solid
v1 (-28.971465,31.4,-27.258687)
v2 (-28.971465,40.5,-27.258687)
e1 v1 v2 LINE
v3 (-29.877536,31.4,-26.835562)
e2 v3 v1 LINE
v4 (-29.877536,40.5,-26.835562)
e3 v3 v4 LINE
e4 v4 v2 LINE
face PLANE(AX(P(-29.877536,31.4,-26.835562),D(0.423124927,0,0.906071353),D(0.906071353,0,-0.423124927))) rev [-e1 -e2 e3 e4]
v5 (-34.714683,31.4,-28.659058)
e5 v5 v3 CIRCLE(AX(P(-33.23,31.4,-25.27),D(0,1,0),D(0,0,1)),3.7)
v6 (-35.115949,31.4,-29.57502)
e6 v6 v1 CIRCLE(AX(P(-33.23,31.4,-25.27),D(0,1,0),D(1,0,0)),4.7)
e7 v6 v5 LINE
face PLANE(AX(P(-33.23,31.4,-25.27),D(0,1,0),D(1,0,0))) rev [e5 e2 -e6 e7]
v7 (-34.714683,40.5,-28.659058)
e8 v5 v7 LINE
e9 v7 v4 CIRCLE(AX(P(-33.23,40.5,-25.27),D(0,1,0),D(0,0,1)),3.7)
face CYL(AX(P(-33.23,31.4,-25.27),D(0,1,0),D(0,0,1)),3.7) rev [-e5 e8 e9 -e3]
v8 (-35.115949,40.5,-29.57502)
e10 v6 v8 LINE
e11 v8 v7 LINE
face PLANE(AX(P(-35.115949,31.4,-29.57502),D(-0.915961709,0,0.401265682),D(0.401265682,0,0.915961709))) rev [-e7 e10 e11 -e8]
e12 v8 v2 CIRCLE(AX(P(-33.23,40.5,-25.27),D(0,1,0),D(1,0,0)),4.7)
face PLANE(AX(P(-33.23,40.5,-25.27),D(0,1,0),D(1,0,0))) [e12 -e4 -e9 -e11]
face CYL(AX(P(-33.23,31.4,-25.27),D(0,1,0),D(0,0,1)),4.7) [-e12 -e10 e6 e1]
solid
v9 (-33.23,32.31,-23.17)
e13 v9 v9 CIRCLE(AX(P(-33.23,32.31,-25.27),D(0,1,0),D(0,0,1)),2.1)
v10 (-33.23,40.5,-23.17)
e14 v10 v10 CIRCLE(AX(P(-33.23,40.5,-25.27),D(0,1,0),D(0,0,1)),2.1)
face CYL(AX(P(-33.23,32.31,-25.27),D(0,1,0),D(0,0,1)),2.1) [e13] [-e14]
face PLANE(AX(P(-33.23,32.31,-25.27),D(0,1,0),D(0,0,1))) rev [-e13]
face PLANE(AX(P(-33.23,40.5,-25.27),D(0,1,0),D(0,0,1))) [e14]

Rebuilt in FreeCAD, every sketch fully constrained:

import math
import FreeCAD as App
import Part
import Sketcher
Q = App.Units.Quantity

doc = App.newDocument("Part")
params = doc.addObject("Spreadsheet::Sheet", "Params")
for row, (alias, value) in enumerate([
    ("sketch1_radius", "3.7 mm"),
    ("sketch1_radius2", "4.7 mm"),
    ("pad1_length", "9.1 mm"),
    ("sketch2_diameter", "4.2 mm"),
    ("pad2_length", "8.19 mm"),
], start=1):
    params.set(f"A{row}", alias)
    params.set(f"B{row}", "=" + value)
    params.setAlias(f"B{row}", alias)

body = doc.addObject("PartDesign::Body", "Body")

# Sketch on XZ plane
sketch1 = body.newObject("Sketcher::SketchObject", "Sketch")
sketch1.AttachmentSupport = (doc.getObject("XZ_Plane"), [""])
sketch1.MapMode = "FlatFace"
sketch1.AttachmentOffset = App.Placement(App.Vector(0, 0, -40.5), App.Rotation())
sketch1.addGeometry(Part.ArcOfCircle(Part.Circle(App.Vector(-33.2, -25.3, 0), App.Vector(0, 0, 1), 3.7), math.radians(-25), math.radians(246)), False)
sketch1.addGeometry(Part.LineSegment(App.Vector(-34.7, -28.7, 0), App.Vector(-35.1, -29.6, 0)), False)
sketch1.addGeometry(Part.ArcOfCircle(Part.Circle(App.Vector(-33.2, -25.3, 0), App.Vector(0, 0, 1), 4.7), math.radians(-25), math.radians(246)), False)
sketch1.addGeometry(Part.LineSegment(App.Vector(-29, -27.3, 0), App.Vector(-29.9, -26.8, 0)), False)
sketch1.addConstraint(Sketcher.Constraint("Coincident", 0, 2, 1, 1))
sketch1.addConstraint(Sketcher.Constraint("Coincident", 1, 2, 2, 2))
sketch1.addConstraint(Sketcher.Constraint("Coincident", 2, 1, 3, 1))
sketch1.addConstraint(Sketcher.Constraint("Coincident", 3, 2, 0, 1))
sketch1.addConstraint(Sketcher.Constraint("Coincident", 2, 3, 0, 3))
sketch1.addConstraint(Sketcher.Constraint("Radius", 0, Q("3.7 mm")))
sketch1.addConstraint(Sketcher.Constraint("Radius", 2, Q("4.7 mm")))
sketch1.addConstraint(Sketcher.Constraint("DistanceX", 0, 3, -1, 1, Q("33.23 mm")))
sketch1.addConstraint(Sketcher.Constraint("DistanceY", 0, 3, -1, 1, Q("25.27 mm")))
sketch1.addConstraint(Sketcher.Constraint("DistanceY", 0, 2, -1, 1, Q("28.659058 mm")))
sketch1.addConstraint(Sketcher.Constraint("DistanceX", 1, 2, -1, 1, Q("35.115949 mm")))
sketch1.addConstraint(Sketcher.Constraint("DistanceX", 0, 2, 2, 1, Q("5.743218 mm")))
sketch1.addConstraint(Sketcher.Constraint("DistanceX", 3, 2, 2, 1, Q("0.906071 mm")))
sketch1.setExpression("Constraints[5]", "Params.sketch1_radius")
sketch1.setExpression("Constraints[6]", "Params.sketch1_radius2")
pad1 = body.newObject("PartDesign::Pad", "Pad")
pad1.Profile = sketch1
pad1.setExpression("Length", "Params.pad1_length")
body2 = doc.addObject("PartDesign::Body", "Body001")

# Sketch on XZ plane
sketch2 = body2.newObject("Sketcher::SketchObject", "Sketch001")
sketch2.AttachmentSupport = (doc.getObject("XZ_Plane001"), [""])
sketch2.MapMode = "FlatFace"
sketch2.AttachmentOffset = App.Placement(App.Vector(0, 0, -40.5), App.Rotation())
sketch2.addGeometry(Part.Circle(App.Vector(-33.2, -25.3, 0), App.Vector(0, 0, 1), 2.1), False)
sketch2.addConstraint(Sketcher.Constraint("Diameter", 0, Q("4.2 mm")))
sketch2.addConstraint(Sketcher.Constraint("DistanceX", 0, 3, -1, 1, Q("33.23 mm")))
sketch2.addConstraint(Sketcher.Constraint("DistanceY", 0, 3, -1, 1, Q("25.27 mm")))
sketch2.setExpression("Constraints[0]", "Params.sketch2_diameter")
pad2 = body2.newObject("PartDesign::Pad", "Pad001")
pad2.Profile = sketch2
pad2.setExpression("Length", "Params.pad2_length")

doc.recompute()
